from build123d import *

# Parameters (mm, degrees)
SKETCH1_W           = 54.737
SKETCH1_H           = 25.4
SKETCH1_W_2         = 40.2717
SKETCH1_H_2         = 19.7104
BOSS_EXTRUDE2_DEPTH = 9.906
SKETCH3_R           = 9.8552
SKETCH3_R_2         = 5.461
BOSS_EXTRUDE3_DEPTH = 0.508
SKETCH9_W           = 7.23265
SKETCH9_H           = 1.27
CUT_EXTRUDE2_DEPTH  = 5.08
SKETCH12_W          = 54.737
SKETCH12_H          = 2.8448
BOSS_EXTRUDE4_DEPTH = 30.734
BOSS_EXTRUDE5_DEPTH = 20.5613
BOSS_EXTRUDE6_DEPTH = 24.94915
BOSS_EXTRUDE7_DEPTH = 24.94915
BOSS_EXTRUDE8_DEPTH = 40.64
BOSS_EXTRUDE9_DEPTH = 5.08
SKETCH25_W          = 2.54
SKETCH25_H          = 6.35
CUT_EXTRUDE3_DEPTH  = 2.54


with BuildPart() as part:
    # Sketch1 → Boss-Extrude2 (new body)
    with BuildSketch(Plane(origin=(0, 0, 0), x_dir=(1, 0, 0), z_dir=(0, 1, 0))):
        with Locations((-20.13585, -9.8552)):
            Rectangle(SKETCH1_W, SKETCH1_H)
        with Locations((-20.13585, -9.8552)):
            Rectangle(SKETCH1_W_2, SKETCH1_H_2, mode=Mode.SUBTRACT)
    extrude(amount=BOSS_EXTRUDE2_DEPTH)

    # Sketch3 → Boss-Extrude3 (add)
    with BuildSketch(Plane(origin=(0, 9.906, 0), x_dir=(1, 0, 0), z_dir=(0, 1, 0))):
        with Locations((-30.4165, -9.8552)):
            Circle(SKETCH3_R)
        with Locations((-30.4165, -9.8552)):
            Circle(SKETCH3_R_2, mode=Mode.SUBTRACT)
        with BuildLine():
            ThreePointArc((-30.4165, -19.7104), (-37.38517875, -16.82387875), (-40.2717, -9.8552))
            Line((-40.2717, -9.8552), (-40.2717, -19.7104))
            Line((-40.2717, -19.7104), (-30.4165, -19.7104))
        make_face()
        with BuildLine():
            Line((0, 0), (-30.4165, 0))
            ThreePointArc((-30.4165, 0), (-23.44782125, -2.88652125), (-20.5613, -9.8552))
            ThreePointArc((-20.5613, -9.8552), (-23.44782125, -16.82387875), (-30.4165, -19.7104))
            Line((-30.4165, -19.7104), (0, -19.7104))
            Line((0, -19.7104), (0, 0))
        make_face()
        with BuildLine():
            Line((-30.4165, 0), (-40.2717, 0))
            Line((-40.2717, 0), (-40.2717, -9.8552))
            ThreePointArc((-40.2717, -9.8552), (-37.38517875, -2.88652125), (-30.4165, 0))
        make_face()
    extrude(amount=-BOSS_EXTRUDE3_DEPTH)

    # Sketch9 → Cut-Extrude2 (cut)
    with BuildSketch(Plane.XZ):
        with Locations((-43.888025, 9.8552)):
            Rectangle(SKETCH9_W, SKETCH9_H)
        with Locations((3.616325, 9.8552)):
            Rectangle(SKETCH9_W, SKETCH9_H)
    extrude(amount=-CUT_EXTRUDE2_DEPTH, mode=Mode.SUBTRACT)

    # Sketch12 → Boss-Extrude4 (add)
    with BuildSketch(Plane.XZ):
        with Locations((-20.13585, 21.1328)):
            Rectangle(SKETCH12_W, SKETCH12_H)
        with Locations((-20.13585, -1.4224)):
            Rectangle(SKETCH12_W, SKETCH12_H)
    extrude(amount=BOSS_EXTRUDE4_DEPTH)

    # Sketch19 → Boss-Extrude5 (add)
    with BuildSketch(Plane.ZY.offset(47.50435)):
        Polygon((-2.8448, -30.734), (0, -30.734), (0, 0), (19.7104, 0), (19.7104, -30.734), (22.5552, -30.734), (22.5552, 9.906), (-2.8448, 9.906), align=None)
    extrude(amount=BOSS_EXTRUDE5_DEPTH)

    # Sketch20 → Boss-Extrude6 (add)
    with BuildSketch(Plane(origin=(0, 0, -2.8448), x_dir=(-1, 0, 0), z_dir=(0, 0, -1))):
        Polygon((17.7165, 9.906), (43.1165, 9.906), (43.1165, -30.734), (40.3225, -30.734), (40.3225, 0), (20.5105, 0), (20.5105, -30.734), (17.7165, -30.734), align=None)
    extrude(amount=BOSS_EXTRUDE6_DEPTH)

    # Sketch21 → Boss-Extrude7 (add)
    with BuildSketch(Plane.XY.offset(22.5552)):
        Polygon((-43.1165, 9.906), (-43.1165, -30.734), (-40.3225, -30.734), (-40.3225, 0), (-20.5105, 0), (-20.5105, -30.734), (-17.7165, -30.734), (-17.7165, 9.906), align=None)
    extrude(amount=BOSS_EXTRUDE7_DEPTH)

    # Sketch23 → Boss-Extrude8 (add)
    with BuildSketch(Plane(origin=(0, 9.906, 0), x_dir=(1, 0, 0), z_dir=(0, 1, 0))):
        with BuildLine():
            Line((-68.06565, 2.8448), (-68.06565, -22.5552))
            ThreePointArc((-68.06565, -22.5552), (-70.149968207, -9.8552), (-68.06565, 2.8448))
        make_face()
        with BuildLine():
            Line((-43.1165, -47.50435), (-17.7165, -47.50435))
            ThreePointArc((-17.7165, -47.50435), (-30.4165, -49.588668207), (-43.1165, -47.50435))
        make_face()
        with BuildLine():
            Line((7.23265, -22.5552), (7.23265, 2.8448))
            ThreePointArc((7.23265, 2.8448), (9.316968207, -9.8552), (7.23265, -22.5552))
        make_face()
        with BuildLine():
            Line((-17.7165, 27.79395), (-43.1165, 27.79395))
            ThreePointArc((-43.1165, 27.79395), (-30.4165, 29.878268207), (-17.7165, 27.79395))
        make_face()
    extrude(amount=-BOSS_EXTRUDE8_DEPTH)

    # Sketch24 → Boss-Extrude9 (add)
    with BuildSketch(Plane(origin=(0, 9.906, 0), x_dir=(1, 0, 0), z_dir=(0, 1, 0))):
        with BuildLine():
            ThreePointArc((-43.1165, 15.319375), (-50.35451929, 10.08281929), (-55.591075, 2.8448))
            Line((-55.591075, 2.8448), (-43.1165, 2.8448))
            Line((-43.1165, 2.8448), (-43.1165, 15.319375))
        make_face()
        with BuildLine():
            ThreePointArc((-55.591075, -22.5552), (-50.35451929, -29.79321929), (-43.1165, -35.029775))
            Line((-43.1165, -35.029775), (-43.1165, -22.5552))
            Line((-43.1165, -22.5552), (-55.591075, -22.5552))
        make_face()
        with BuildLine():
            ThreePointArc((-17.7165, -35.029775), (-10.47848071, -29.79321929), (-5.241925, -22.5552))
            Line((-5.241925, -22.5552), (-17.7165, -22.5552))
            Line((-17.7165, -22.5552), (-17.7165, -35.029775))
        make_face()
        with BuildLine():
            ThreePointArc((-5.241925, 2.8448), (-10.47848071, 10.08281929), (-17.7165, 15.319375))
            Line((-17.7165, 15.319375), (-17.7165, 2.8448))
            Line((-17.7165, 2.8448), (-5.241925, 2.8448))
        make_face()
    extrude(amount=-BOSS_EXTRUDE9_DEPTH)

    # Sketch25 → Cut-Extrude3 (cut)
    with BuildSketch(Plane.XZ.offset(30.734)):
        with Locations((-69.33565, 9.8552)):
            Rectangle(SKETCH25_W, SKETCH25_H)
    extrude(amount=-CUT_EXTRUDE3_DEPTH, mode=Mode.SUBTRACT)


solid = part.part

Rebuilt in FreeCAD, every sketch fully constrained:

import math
import FreeCAD as App
import Part
import Sketcher
from FreeCAD import Vector
Q = App.Units.Quantity


def add_polygon(sketch, points):
    """Adds a closed chain of lines whose ends are joined by coincident constraints."""
    first, n = sketch.GeometryCount, len(points)
    for a, b in zip(points, points[1:] + points[:1]):
        sketch.addGeometry(Part.LineSegment(App.Vector(*a, 0), App.Vector(*b, 0)), False)
    for i in range(n):
        sketch.addConstraint(Sketcher.Constraint("Coincident", first + i, 2, first + (i + 1) % n, 1))

doc = App.newDocument("Part")
body = doc.addObject("PartDesign::Body", "Body")

# Sketch on XZ plane
sketch1 = body.newObject("Sketcher::SketchObject", "Sketch")
sketch1.AttachmentSupport = (doc.getObject("XZ_Plane"), [""])
sketch1.MapMode = "FlatFace"
add_polygon(sketch1, [(-47.50435, -2.8448), (-47.50435, 22.5552), (7.23265, 22.5552), (7.23265, -2.8448)])  # lines 0-3
add_polygon(sketch1, [(0, 19.7104), (-40.2717, 19.7104), (-40.2717, 0), (0, 0)])  # lines 4-7
sketch1.addConstraint(Sketcher.Constraint("Vertical", 0))
sketch1.addConstraint(Sketcher.Constraint("Horizontal", 1))
sketch1.addConstraint(Sketcher.Constraint("Vertical", 2))
sketch1.addConstraint(Sketcher.Constraint("Horizontal", 3))
sketch1.addConstraint(Sketcher.Constraint("Horizontal", 4))
sketch1.addConstraint(Sketcher.Constraint("Vertical", 5))
sketch1.addConstraint(Sketcher.Constraint("Horizontal", 6))
sketch1.addConstraint(Sketcher.Constraint("Vertical", 7))
sketch1.addConstraint(Sketcher.Constraint("Coincident", 6, 2, -1, 1))
sketch1.addConstraint(Sketcher.Constraint("DistanceY", 0, 1, 0, 2, Q("1 in")))
sketch1.addConstraint(Sketcher.Constraint("DistanceX", 1, 1, 1, 2, Q("2.155 in")))
sketch1.addConstraint(Sketcher.Constraint("DistanceY", 5, 2, 5, 1, Q("0.776 in")))
sketch1.addConstraint(Sketcher.Constraint("DistanceX", 4, 2, 4, 1, Q("1.5855 in")))
sketch1.addConstraint(Sketcher.Constraint("DistanceY", -1, 1, 0, 2, Q("0.888 in")))
sketch1.addConstraint(Sketcher.Constraint("DistanceX", 0, 2, -1, 1, 47.50435))
pad1 = body.newObject("PartDesign::Pad", "Pad")
pad1.Profile = sketch1
pad1.Length = Q("0.39 in")
pad1.Reversed = True

# Sketch on XZ plane
sketch2 = body.newObject("Sketcher::SketchObject", "Sketch001")
sketch2.AttachmentSupport = (doc.getObject("XZ_Plane"), [""])
sketch2.MapMode = "FlatFace"
sketch2.AttachmentOffset = App.Placement(Vector(0, 0, -0.39 * 25.4), App.Rotation())
add_polygon(sketch2, [(-40.2717, 19.7104), (0, 19.7104), (0, 0), (-40.2717, 0)])  # lines 0-3
sketch2.addGeometry(Part.Circle(Vector(-30.4165, 9.8552, 0), Vector(0, 0, 1), 5.461), False)  # 4
sketch2.addConstraint(Sketcher.Constraint("Horizontal", 0))
sketch2.addConstraint(Sketcher.Constraint("Vertical", 1))
sketch2.addConstraint(Sketcher.Constraint("Horizontal", 2))
sketch2.addConstraint(Sketcher.Constraint("Vertical", 3))
sketch2.addConstraint(Sketcher.Constraint("Coincident", 1, 2, -1, 1))
sketch2.addConstraint(Sketcher.Constraint("Diameter", 4, Q("0.43 in")))
sketch2.addConstraint(Sketcher.Constraint("DistanceY", 1, 2, 1, 1, Q("0.776 in")))
sketch2.addConstraint(Sketcher.Constraint("DistanceX", 0, 1, 0, 2, Q("1.5855 in")))
sketch2.addConstraint(Sketcher.Constraint("DistanceY", -1, 1, 4, 3, Q("0.388 in")))
sketch2.addConstraint(Sketcher.Constraint("DistanceX", 2, 2, 4, 3, Q("0.388 in")))
pad2 = body.newObject("PartDesign::Pad", "Pad001")
pad2.Profile = sketch2
pad2.Length = Q("0.02 in")

# Sketch on XZ plane
sketch3 = body.newObject("Sketcher::SketchObject", "Sketch002")
sketch3.AttachmentSupport = (doc.getObject("XZ_Plane"), [""])
sketch3.MapMode = "FlatFace"
add_polygon(sketch3, [(-47.50435, 10.4902), (-47.50435, 9.2202), (-40.2717, 9.2202), (-40.2717, 10.4902)])  # lines 0-3
add_polygon(sketch3, [(0, 10.4902), (0, 9.2202), (7.23265, 9.2202), (7.23265, 10.4902)])  # lines 4-7
sketch3.addConstraint(Sketcher.Constraint("Vertical", 0))
sketch3.addConstraint(Sketcher.Constraint("Horizontal", 1))
sketch3.addConstraint(Sketcher.Constraint("Vertical", 2))
sketch3.addConstraint(Sketcher.Constraint("Horizontal", 3))
sketch3.addConstraint(Sketcher.Constraint("Vertical", 4))
sketch3.addConstraint(Sketcher.Constraint("Horizontal", 5))
sketch3.addConstraint(Sketcher.Constraint("Vertical", 6))
sketch3.addConstraint(Sketcher.Constraint("Horizontal", 7))
sketch3.addConstraint(Sketcher.Constraint("PointOnObject", 4, 2, -2))
sketch3.addConstraint(Sketcher.Constraint("Horizontal", 1, 2, 4, 2))
sketch3.addConstraint(Sketcher.Constraint("Horizontal", 3, 2, 6, 2))
sketch3.addConstraint(Sketcher.Constraint("Equal", 3, 5))
sketch3.addConstraint(Sketcher.Constraint("DistanceY", 0, 2, 0, 1, Q("0.05 in")))
sketch3.addConstraint(Sketcher.Constraint("DistanceY", -1, 1, 0, 2, Q("0.363 in")))
sketch3.addConstraint(Sketcher.Constraint("DistanceX", 0, 2, 5, 2, Q("2.155 in")))
sketch3.addConstraint(Sketcher.Constraint("DistanceX", 1, 2, -1, 1, Q("1.5855 in")))
pocket1 = body.newObject("PartDesign::Pocket", "Pocket")
pocket1.Profile = sketch3
pocket1.Length = Q("0.2 in")

# Sketch on XZ plane
sketch4 = body.newObject("Sketcher::SketchObject", "Sketch003")
sketch4.AttachmentSupport = (doc.getObject("XZ_Plane"), [""])
sketch4.MapMode = "FlatFace"
add_polygon(sketch4, [(-47.50435, 22.5552), (-47.50435, 19.7104), (7.23265, 19.7104), (7.23265, 22.5552)])  # lines 0-3
add_polygon(sketch4, [(-47.50435, 0), (-47.50435, -2.8448), (7.23265, -2.8448), (7.23265, 0)])  # lines 4-7
sketch4.addConstraint(Sketcher.Constraint("Vertical", 0))
sketch4.addConstraint(Sketcher.Constraint("Horizontal", 1))
sketch4.addConstraint(Sketcher.Constraint("Vertical", 2))
sketch4.addConstraint(Sketcher.Constraint("Horizontal", 3))
sketch4.addConstraint(Sketcher.Constraint("Vertical", 4))
sketch4.addConstraint(Sketcher.Constraint("Horizontal", 5))
sketch4.addConstraint(Sketcher.Constraint("Vertical", 6))
sketch4.addConstraint(Sketcher.Constraint("Horizontal", 7))
sketch4.addConstraint(Sketcher.Constraint("PointOnObject", 6, 2, -1))
sketch4.addConstraint(Sketcher.Constraint("Vertical", 3, 2, 4, 2))
sketch4.addConstraint(Sketcher.Constraint("Vertical", 2, 2, 5, 2))
sketch4.addConstraint(Sketcher.Constraint("Equal", 2, 4))
sketch4.addConstraint(Sketcher.Constraint("DistanceY", 4, 2, 3, 2, Q("1 in")))
sketch4.addConstraint(Sketcher.Constraint("DistanceX", 1, 1, 1, 2, Q("2.155 in")))
sketch4.addConstraint(Sketcher.Constraint("DistanceY", 0, 2, 0, 1, Q("0.112 in")))
sketch4.addConstraint(Sketcher.Constraint("DistanceX", 0, 2, -1, 1, 47.50435))
pad3 = body.newObject("PartDesign::Pad", "Pad002")
pad3.Profile = sketch4
pad3.Length = Q("1.21 in")

# Sketch on YZ plane
sketch5 = body.newObject("Sketcher::SketchObject", "Sketch004")
sketch5.AttachmentSupport = (doc.getObject("YZ_Plane"), [""])
sketch5.MapMode = "FlatFace"
sketch5.AttachmentOffset = App.Placement(Vector(0, 0, -47.50435), App.Rotation())
add_polygon(sketch5, [(-30.734, -2.8448), (-30.734, 0), (0, 0), (0, 19.7104), (-30.734, 19.7104), (-30.734, 22.5552), (9.906, 22.5552), (9.906, -2.8448)])  # lines 0-7
sketch5.addConstraint(Sketcher.Constraint("Vertical", 0))
sketch5.addConstraint(Sketcher.Constraint("Horizontal", 1))
sketch5.addConstraint(Sketcher.Constraint("Vertical", 2))
sketch5.addConstraint(Sketcher.Constraint("Horizontal", 3))
sketch5.addConstraint(Sketcher.Constraint("Vertical", 4))
sketch5.addConstraint(Sketcher.Constraint("Horizontal", 5))
sketch5.addConstraint(Sketcher.Constraint("Vertical", 6))
sketch5.addConstraint(Sketcher.Constraint("Horizontal", 7))
sketch5.addConstraint(Sketcher.Constraint("Coincident", 1, 2, -1, 1))
sketch5.addConstraint(Sketcher.Constraint("Vertical", 0, 2, 3, 2))
sketch5.addConstraint(Sketcher.Constraint("Equal", 0, 4))
sketch5.addConstraint(Sketcher.Constraint("DistanceY", 6, 2, 6, 1, Q("1 in")))
sketch5.addConstraint(Sketcher.Constraint("DistanceX", 5, 1, 5, 2, Q("1.6 in")))
sketch5.addConstraint(Sketcher.Constraint("DistanceX", 1, 1, 1, 2, Q("1.21 in")))
sketch5.addConstraint(Sketcher.Constraint("DistanceY", 0, 1, 0, 2, Q("0.112 in")))
pad4 = body.newObject("PartDesign::Pad", "Pad003")
pad4.Profile = sketch5
pad4.Length = Q("0.8095 in")
pad4.Reversed = True

# Sketch on XY plane
sketch6 = body.newObject("Sketcher::SketchObject", "Sketch005")
sketch6.AttachmentSupport = (doc.getObject("XY_Plane"), [""])
sketch6.MapMode = "FlatFace"
sketch6.AttachmentOffset = App.Placement(Vector(0, 0, -0.112 * 25.4), App.Rotation())
add_polygon(sketch6, [(-43.1165, 9.906), (-17.7165, 9.906), (-17.7165, -30.734), (-20.5105, -30.734), (-20.5105, 0), (-40.3225, 0), (-40.3225, -30.734), (-43.1165, -30.734)])  # lines 0-7
sketch6.addConstraint(Sketcher.Constraint("Horizontal", 0))
sketch6.addConstraint(Sketcher.Constraint("Vertical", 1))
sketch6.addConstraint(Sketcher.Constraint("Horizontal", 2))
sketch6.addConstraint(Sketcher.Constraint("Vertical", 3))
sketch6.addConstraint(Sketcher.Constraint("Horizontal", 4))
sketch6.addConstraint(Sketcher.Constraint("Vertical", 5))
sketch6.addConstraint(Sketcher.Constraint("Horizontal", 6))
sketch6.addConstraint(Sketcher.Constraint("Vertical", 7))
sketch6.addConstraint(Sketcher.Constraint("PointOnObject", 3, 2, -1))
sketch6.addConstraint(Sketcher.Constraint("Horizontal", 2, 2, 5, 2))
sketch6.addConstraint(Sketcher.Constraint("Equal", 2, 6))
sketch6.addConstraint(Sketcher.Constraint("DistanceX", 0, 1, 0, 2, Q("1 in")))
sketch6.addConstraint(Sketcher.Constraint("DistanceY", 1, 2, 1, 1, Q("1.6 in")))
sketch6.addConstraint(Sketcher.Constraint("DistanceX", 2, 2, 2, 1, Q("0.11 in")))
sketch6.addConstraint(Sketcher.Constraint("DistanceY", 3, 1, 3, 2, Q("1.21 in")))
sketch6.addConstraint(Sketcher.Constraint("DistanceX", 0, 2, -1, 1, Q("0.6975 in")))
pad5 = body.newObject("PartDesign::Pad", "Pad004")
pad5.Profile = sketch6
pad5.Length = 24.94915
pad5.Reversed = True

# Sketch on XY plane
sketch7 = body.newObject("Sketcher::SketchObject", "Sketch006")
sketch7.AttachmentSupport = (doc.getObject("XY_Plane"), [""])
sketch7.MapMode = "FlatFace"
sketch7.AttachmentOffset = App.Placement(Vector(0, 0, 0.888 * 25.4), App.Rotation())
add_polygon(sketch7, [(-43.1165, 9.906), (-43.1165, -30.734), (-40.3225, -30.734), (-40.3225, 0), (-20.5105, 0), (-20.5105, -30.734), (-17.7165, -30.734), (-17.7165, 9.906)])  # lines 0-7
sketch7.addConstraint(Sketcher.Constraint("Vertical", 0))
sketch7.addConstraint(Sketcher.Constraint("Horizontal", 1))
sketch7.addConstraint(Sketcher.Constraint("Vertical", 2))
sketch7.addConstraint(Sketcher.Constraint("Horizontal", 3))
sketch7.addConstraint(Sketcher.Constraint("Vertical", 4))
sketch7.addConstraint(Sketcher.Constraint("Horizontal", 5))
sketch7.addConstraint(Sketcher.Constraint("Vertical", 6))
sketch7.addConstraint(Sketcher.Constraint("Horizontal", 7))
sketch7.addConstraint(Sketcher.Constraint("PointOnObject", 2, 2, -1))
sketch7.addConstraint(Sketcher.Constraint("Horizontal", 1, 2, 4, 2))
sketch7.addConstraint(Sketcher.Constraint("Equal", 1, 5))
sketch7.addConstraint(Sketcher.Constraint("DistanceX", 7, 2, 7, 1, Q("1 in")))
sketch7.addConstraint(Sketcher.Constraint("DistanceY", 0, 2, 0, 1, Q("1.6 in")))
sketch7.addConstraint(Sketcher.Constraint("DistanceX", 1, 1, 1, 2, Q("0.11 in")))
sketch7.addConstraint(Sketcher.Constraint("DistanceY", 2, 1, 2, 2, Q("1.21 in")))
sketch7.addConstraint(Sketcher.Constraint("DistanceX", 0, 2, -1, 1, Q("1.6975 in")))
pad6 = body.newObject("PartDesign::Pad", "Pad005")
pad6.Profile = sketch7
pad6.Length = 24.94915

# Sketch on XZ plane
sketch8 = body.newObject("Sketcher::SketchObject", "Sketch007")
sketch8.AttachmentSupport = (doc.getObject("XZ_Plane"), [""])
sketch8.MapMode = "FlatFace"
sketch8.AttachmentOffset = App.Placement(Vector(0, 0, -0.39 * 25.4), App.Rotation())
sketch8.addGeometry(Part.LineSegment(Vector(-68.06565, 22.5552, 0), Vector(-68.06565, -2.8448, 0)), False)
sketch8.addGeometry(Part.ArcOfCircle(Part.Circle(Vector(-30.4165, 9.8552, 0), Vector(0, 0, 1), 39.733468), math.radians(161.359463), math.radians(198.640537)), False)
sketch8.addGeometry(Part.LineSegment(Vector(-17.7165, 47.50435, 0), Vector(-43.1165, 47.50435, 0)), False)
sketch8.addGeometry(Part.ArcOfCircle(Part.Circle(Vector(-30.4165, 9.8552, 0), Vector(0, 0, 1), 39.733468), math.radians(71.359463), math.radians(108.640537)), False)
sketch8.addGeometry(Part.LineSegment(Vector(7.23265, -2.8448, 0), Vector(7.23265, 22.5552, 0)), False)
sketch8.addGeometry(Part.ArcOfCircle(Part.Circle(Vector(-30.4165, 9.8552, 0), Vector(0, 0, 1), 39.733468), math.radians(-18.640537), math.radians(18.640537)), False)
sketch8.addGeometry(Part.LineSegment(Vector(-43.1165, -27.79395, 0), Vector(-17.7165, -27.79395, 0)), False)
sketch8.addGeometry(Part.ArcOfCircle(Part.Circle(Vector(-30.4165, 9.8552, 0), Vector(0, 0, 1), 39.733468), math.radians(-108.640537), math.radians(-71.359463)), False)
sketch8.addConstraint(Sketcher.Constraint("Coincident", 0, 1, 1, 1))
sketch8.addConstraint(Sketcher.Constraint("Coincident", 1, 2, 0, 2))
sketch8.addConstraint(Sketcher.Constraint("Coincident", 2, 1, 3, 1))
sketch8.addConstraint(Sketcher.Constraint("Coincident", 3, 2, 2, 2))
sketch8.addConstraint(Sketcher.Constraint("Coincident", 4, 1, 5, 1))
sketch8.addConstraint(Sketcher.Constraint("Coincident", 5, 2, 4, 2))
sketch8.addConstraint(Sketcher.Constraint("Coincident", 6, 1, 7, 1))
sketch8.addConstraint(Sketcher.Constraint("Coincident", 7, 2, 6, 2))
sketch8.addConstraint(Sketcher.Constraint("Vertical", 0))
sketch8.addConstraint(Sketcher.Constraint("Horizontal", 2))
sketch8.addConstraint(Sketcher.Constraint("Vertical", 4))
sketch8.addConstraint(Sketcher.Constraint("Horizontal", 6))
sketch8.addConstraint(Sketcher.Constraint("Coincident", 3, 3, 1, 3))
sketch8.addConstraint(Sketcher.Constraint("Coincident", 5, 3, 1, 3))
sketch8.addConstraint(Sketcher.Constraint("Coincident", 7, 3, 1, 3))
sketch8.addConstraint(Sketcher.Constraint("Equal", 1, 3))
sketch8.addConstraint(Sketcher.Constraint("Equal", 3, 5))
sketch8.addConstraint(Sketcher.Constraint("Equal", 5, 7))
sketch8.addConstraint(Sketcher.Constraint("Horizontal", 1, 2, 4, 1))
sketch8.addConstraint(Sketcher.Constraint("Vertical", 3, 2, 6, 1))
sketch8.addConstraint(Sketcher.Constraint("Equal", 6, 0))
sketch8.addConstraint(Sketcher.Constraint("DistanceX", 2, 2, 2, 1, Q("1 in")))
sketch8.addConstraint(Sketcher.Constraint("DistanceY", -1, 1, 1, 3, Q("0.388 in")))
sketch8.addConstraint(Sketcher.Constraint("Radius", 1, 39.733468))
sketch8.addConstraint(Sketcher.Constraint("DistanceX", 1, 3, -1, 1, Q("1.1975 in")))
pad7 = body.newObject("PartDesign::Pad", "Pad006")
pad7.Profile = sketch8
pad7.Length = Q("1.6 in")

# Sketch on XZ plane
sketch9 = body.newObject("Sketcher::SketchObject", "Sketch008")
sketch9.AttachmentSupport = (doc.getObject("XZ_Plane"), [""])
sketch9.MapMode = "FlatFace"
sketch9.AttachmentOffset = App.Placement(Vector(0, 0, -0.39 * 25.4), App.Rotation())
sketch9.addGeometry(Part.ArcOfCircle(Part.Circle(Vector(-30.4165, 9.8552, 0), Vector(0, 0, 1), 28.196617), math.radians(-153.230095), math.radians(-116.769905)), False)
sketch9.addGeometry(Part.LineSegment(Vector(-55.591075, -2.8448, 0), Vector(-43.1165, -2.8448, 0)), False)
sketch9.addGeometry(Part.LineSegment(Vector(-43.1165, -2.8448, 0), Vector(-43.1165, -15.319375, 0)), False)
sketch9.addGeometry(Part.ArcOfCircle(Part.Circle(Vector(-30.4165, 9.8552, 0), Vector(0, 0, 1), 28.196617), math.radians(116.769905), math.radians(153.230095)), False)
sketch9.addGeometry(Part.LineSegment(Vector(-43.1165, 35.029775, 0), Vector(-43.1165, 22.5552, 0)), False)
sketch9.addGeometry(Part.LineSegment(Vector(-43.1165, 22.5552, 0), Vector(-55.591075, 22.5552, 0)), False)
sketch9.addGeometry(Part.ArcOfCircle(Part.Circle(Vector(-30.4165, 9.8552, 0), Vector(0, 0, 1), 28.196617), math.radians(26.769905), math.radians(63.230095)), False)
sketch9.addGeometry(Part.LineSegment(Vector(-5.241925, 22.5552, 0), Vector(-17.7165, 22.5552, 0)), False)
sketch9.addGeometry(Part.LineSegment(Vector(-17.7165, 22.5552, 0), Vector(-17.7165, 35.029775, 0)), False)
sketch9.addGeometry(Part.ArcOfCircle(Part.Circle(Vector(-30.4165, 9.8552, 0), Vector(0, 0, 1), 28.196617), math.radians(-63.230095), math.radians(-26.769905)), False)
sketch9.addGeometry(Part.LineSegment(Vector(-17.7165, -15.319375, 0), Vector(-17.7165, -2.8448, 0)), False)
sketch9.addGeometry(Part.LineSegment(Vector(-17.7165, -2.8448, 0), Vector(-5.241925, -2.8448, 0)), False)
sketch9.addConstraint(Sketcher.Constraint("Coincident", 0, 1, 1, 1))
sketch9.addConstraint(Sketcher.Constraint("Coincident", 1, 2, 2, 1))
sketch9.addConstraint(Sketcher.Constraint("Coincident", 2, 2, 0, 2))
sketch9.addConstraint(Sketcher.Constraint("Coincident", 3, 1, 4, 1))
sketch9.addConstraint(Sketcher.Constraint("Coincident", 4, 2, 5, 1))
sketch9.addConstraint(Sketcher.Constraint("Coincident", 5, 2, 3, 2))
sketch9.addConstraint(Sketcher.Constraint("Coincident", 6, 1, 7, 1))
sketch9.addConstraint(Sketcher.Constraint("Coincident", 7, 2, 8, 1))
sketch9.addConstraint(Sketcher.Constraint("Coincident", 8, 2, 6, 2))
sketch9.addConstraint(Sketcher.Constraint("Coincident", 9, 1, 10, 1))
sketch9.addConstraint(Sketcher.Constraint("Coincident", 10, 2, 11, 1))
sketch9.addConstraint(Sketcher.Constraint("Coincident", 11, 2, 9, 2))
sketch9.addConstraint(Sketcher.Constraint("Horizontal", 1))
sketch9.addConstraint(Sketcher.Constraint("Vertical", 2))
sketch9.addConstraint(Sketcher.Constraint("Vertical", 4))
sketch9.addConstraint(Sketcher.Constraint("Horizontal", 5))
sketch9.addConstraint(Sketcher.Constraint("Horizontal", 7))
sketch9.addConstraint(Sketcher.Constraint("Vertical", 8))
sketch9.addConstraint(Sketcher.Constraint("Vertical", 10))
sketch9.addConstraint(Sketcher.Constraint("Horizontal", 11))
sketch9.addConstraint(Sketcher.Constraint("Coincident", 3, 3, 0, 3))
sketch9.addConstraint(Sketcher.Constraint("Coincident", 6, 3, 0, 3))
sketch9.addConstraint(Sketcher.Constraint("Coincident", 9, 3, 0, 3))
sketch9.addConstraint(Sketcher.Constraint("Equal", 0, 3))
sketch9.addConstraint(Sketcher.Constraint("Equal", 3, 6))
sketch9.addConstraint(Sketcher.Constraint("Equal", 6, 9))
sketch9.addConstraint(Sketcher.Constraint("Horizontal", 5, 2, 6, 1))
sketch9.addConstraint(Sketcher.Constraint("Horizontal", 3, 1, 8, 2))
sketch9.addConstraint(Sketcher.Constraint("Horizontal", 2, 2, 9, 1))
sketch9.addConstraint(Sketcher.Constraint("Horizontal", 1, 2, 10, 2))
sketch9.addConstraint(Sketcher.Constraint("Vertical", 2, 2, 3, 1))
sketch9.addConstraint(Sketcher.Constraint("Vertical", 0, 1, 5, 2))
sketch9.addConstraint(Sketcher.Constraint("Equal", 11, 2))
sketch9.addConstraint(Sketcher.Constraint("DistanceY", 0, 1, 5, 2, Q("1 in")))
sketch9.addConstraint(Sketcher.Constraint("DistanceY", -1, 1, 0, 3, Q("0.388 in")))
sketch9.addConstraint(Sketcher.Constraint("DistanceX", 0, 3, -1, 1, Q("1.1975 in")))
sketch9.addConstraint(Sketcher.Constraint("Radius", 0, 28.196617))
pad8 = body.newObject("PartDesign::Pad", "Pad007")
pad8.Profile = sketch9
pad8.Length = Q("0.2 in")

# Sketch on XZ plane
sketch10 = body.newObject("Sketcher::SketchObject", "Sketch009")
sketch10.AttachmentSupport = (doc.getObject("XZ_Plane"), [""])
sketch10.MapMode = "FlatFace"
sketch10.AttachmentOffset = App.Placement(Vector(0, 0, 1.21 * 25.4), App.Rotation())
add_polygon(sketch10, [(-70.60565, 13.0302), (-70.60565, 6.6802), (-68.06565, 6.6802), (-68.06565, 13.0302)])  # lines 0-3
sketch10.addConstraint(Sketcher.Constraint("Vertical", 0))
sketch10.addConstraint(Sketcher.Constraint("Horizontal", 1))
sketch10.addConstraint(Sketcher.Constraint("Vertical", 2))
sketch10.addConstraint(Sketcher.Constraint("Horizontal", 3))
sketch10.addConstraint(Sketcher.Constraint("DistanceX", 1, 1, 1, 2, Q("0.1 in")))
sketch10.addConstraint(Sketcher.Constraint("DistanceY", 0, 2, 0, 1, Q("0.25 in")))
sketch10.addConstraint(Sketcher.Constraint("DistanceY", -1, 1, 0, 2, Q("0.263 in")))
sketch10.addConstraint(Sketcher.Constraint("DistanceX", 0, 2, -1, 1, 70.60565))
pocket2 = body.newObject("PartDesign::Pocket", "Pocket001")
pocket2.Profile = sketch10
pocket2.Length = Q("0.1 in")

doc.recompute()
